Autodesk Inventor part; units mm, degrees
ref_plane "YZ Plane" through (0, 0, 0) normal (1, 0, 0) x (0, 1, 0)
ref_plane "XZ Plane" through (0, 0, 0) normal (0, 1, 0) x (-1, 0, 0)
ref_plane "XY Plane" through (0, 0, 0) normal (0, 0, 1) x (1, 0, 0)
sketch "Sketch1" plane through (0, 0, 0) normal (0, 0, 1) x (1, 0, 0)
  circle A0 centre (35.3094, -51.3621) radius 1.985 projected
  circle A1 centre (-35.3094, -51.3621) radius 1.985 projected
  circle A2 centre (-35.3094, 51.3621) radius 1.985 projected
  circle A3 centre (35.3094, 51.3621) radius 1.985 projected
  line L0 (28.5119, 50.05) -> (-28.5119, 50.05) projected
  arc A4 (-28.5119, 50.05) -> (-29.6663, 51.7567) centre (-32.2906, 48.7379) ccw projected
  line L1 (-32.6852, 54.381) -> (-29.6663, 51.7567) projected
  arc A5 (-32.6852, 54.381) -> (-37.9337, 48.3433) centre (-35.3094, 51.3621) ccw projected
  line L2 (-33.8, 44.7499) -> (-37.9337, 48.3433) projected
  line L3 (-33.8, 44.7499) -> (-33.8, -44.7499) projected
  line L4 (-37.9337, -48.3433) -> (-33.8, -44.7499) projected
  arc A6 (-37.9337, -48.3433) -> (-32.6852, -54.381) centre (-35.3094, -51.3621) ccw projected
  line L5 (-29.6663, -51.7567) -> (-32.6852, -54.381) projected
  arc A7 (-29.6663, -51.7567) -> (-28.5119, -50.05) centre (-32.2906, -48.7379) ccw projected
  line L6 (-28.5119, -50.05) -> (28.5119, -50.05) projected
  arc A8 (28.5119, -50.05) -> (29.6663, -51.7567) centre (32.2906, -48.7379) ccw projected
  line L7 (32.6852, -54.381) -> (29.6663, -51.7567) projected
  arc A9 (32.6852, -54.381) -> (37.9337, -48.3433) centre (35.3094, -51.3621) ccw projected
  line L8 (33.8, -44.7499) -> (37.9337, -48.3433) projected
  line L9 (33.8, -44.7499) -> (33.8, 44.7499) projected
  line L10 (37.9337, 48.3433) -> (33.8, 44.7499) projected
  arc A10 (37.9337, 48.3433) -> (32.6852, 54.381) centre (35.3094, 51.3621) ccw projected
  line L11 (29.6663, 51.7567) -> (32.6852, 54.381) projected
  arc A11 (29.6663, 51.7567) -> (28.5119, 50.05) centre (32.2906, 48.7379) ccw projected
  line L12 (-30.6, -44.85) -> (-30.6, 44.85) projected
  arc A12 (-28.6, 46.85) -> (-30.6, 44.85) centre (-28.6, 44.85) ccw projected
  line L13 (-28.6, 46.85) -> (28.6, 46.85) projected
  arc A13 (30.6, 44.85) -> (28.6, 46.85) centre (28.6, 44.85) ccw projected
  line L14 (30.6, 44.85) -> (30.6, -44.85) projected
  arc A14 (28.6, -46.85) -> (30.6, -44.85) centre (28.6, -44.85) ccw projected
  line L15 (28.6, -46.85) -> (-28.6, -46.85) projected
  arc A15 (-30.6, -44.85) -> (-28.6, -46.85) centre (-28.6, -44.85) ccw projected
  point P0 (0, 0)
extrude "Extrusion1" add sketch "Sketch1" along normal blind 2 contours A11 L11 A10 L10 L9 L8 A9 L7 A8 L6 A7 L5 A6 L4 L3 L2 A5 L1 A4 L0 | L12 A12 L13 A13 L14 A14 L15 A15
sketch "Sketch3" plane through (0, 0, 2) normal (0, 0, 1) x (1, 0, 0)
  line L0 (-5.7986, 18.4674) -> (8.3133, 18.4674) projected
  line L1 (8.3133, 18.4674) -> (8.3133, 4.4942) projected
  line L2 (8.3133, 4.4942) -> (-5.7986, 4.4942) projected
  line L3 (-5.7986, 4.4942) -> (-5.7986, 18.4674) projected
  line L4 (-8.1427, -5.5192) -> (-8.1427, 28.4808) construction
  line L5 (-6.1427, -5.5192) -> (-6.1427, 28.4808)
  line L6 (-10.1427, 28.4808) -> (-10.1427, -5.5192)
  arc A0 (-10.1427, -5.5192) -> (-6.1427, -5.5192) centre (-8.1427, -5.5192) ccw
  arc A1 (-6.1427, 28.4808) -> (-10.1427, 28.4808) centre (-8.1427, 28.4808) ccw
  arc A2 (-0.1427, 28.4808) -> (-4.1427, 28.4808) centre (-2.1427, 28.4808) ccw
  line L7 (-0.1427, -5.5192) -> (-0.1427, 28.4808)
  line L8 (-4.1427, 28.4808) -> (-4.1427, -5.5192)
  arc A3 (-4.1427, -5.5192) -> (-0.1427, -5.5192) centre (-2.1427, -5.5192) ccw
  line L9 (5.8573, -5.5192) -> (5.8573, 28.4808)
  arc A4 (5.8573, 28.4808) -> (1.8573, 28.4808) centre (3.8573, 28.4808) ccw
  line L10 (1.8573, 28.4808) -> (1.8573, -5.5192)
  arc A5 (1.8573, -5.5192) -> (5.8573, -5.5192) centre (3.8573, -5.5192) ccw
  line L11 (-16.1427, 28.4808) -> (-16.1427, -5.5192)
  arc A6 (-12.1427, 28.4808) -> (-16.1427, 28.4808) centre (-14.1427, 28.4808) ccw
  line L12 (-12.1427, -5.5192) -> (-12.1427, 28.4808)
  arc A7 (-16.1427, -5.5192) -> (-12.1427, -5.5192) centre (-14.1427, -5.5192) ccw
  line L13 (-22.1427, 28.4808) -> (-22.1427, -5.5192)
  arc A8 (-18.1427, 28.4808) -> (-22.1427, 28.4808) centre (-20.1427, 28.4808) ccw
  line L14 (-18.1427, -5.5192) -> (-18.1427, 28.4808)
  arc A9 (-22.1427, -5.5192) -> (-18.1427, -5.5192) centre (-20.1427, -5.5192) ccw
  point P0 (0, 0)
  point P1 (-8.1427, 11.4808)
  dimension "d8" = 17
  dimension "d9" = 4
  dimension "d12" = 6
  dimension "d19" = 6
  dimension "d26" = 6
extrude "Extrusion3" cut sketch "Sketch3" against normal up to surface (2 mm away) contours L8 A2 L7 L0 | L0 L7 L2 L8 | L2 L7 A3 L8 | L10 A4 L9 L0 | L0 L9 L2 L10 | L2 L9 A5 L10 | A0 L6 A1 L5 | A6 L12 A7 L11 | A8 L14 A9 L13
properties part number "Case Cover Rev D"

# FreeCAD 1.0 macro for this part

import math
import FreeCAD as App
import Part
import Sketcher
from FreeCAD import Vector
Q = App.Units.Quantity

doc = App.newDocument("Part")
body = doc.addObject("PartDesign::Body", "Body")

# Sketch on XY plane
sketch1 = doc.addObject("Sketcher::SketchObject", "Sketch")
body.addObject(sketch1)
sketch1.AttachmentSupport = (doc.XY_Plane, [""])
sketch1.MapMode = "FlatFace"
sketch1.addGeometry([
    Part.ArcOfCircle(Part.Circle(Vector(32.3, 48.7, 0), Vector(0, 0, 1), 4), math.radians(131), math.radians(161)),  # 0
    Part.LineSegment(Vector(28.5, 50, 0), Vector(-28.5, 50, 0)),  # 1
    Part.ArcOfCircle(Part.Circle(Vector(-32.3, 48.7, 0), Vector(0, 0, 1), 4), math.radians(19), math.radians(49)),  # 2
    Part.LineSegment(Vector(-29.7, 51.8, 0), Vector(-32.7, 54.4, 0)),  # 3
    Part.ArcOfCircle(Part.Circle(Vector(-35.3, 51.4, 0), Vector(0, 0, 1), 4), math.radians(49), math.radians(229)),  # 4
    Part.LineSegment(Vector(-37.9, 48.3, 0), Vector(-33.8, 44.7, 0)),  # 5
    Part.LineSegment(Vector(-33.8, 44.7, 0), Vector(-33.8, -44.7, 0)),  # 6
    Part.LineSegment(Vector(-33.8, -44.7, 0), Vector(-37.9, -48.3, 0)),  # 7
    Part.ArcOfCircle(Part.Circle(Vector(-35.3, -51.4, 0), Vector(0, 0, 1), 4), math.radians(131), math.radians(311)),  # 8
    Part.LineSegment(Vector(-32.7, -54.4, 0), Vector(-29.7, -51.8, 0)),  # 9
    Part.ArcOfCircle(Part.Circle(Vector(-32.3, -48.7, 0), Vector(0, 0, 1), 4), math.radians(-49), math.radians(-19)),  # 10
    Part.LineSegment(Vector(-28.5, -50, 0), Vector(28.5, -50, 0)),  # 11
    Part.ArcOfCircle(Part.Circle(Vector(32.3, -48.7, 0), Vector(0, 0, 1), 4), math.radians(-161), math.radians(-131)),  # 12
    Part.LineSegment(Vector(29.7, -51.8, 0), Vector(32.7, -54.4, 0)),  # 13
    Part.ArcOfCircle(Part.Circle(Vector(35.3, -51.4, 0), Vector(0, 0, 1), 4), math.radians(-131), math.radians(49)),  # 14
    Part.LineSegment(Vector(37.9, -48.3, 0), Vector(33.8, -44.7, 0)),  # 15
    Part.LineSegment(Vector(33.8, -44.7, 0), Vector(33.8, 44.7, 0)),  # 16
    Part.LineSegment(Vector(33.8, 44.7, 0), Vector(37.9, 48.3, 0)),  # 17
    Part.ArcOfCircle(Part.Circle(Vector(35.3, 51.4, 0), Vector(0, 0, 1), 4), math.radians(-49), math.radians(131)),  # 18
    Part.LineSegment(Vector(32.7, 54.4, 0), Vector(29.7, 51.8, 0)),  # 19
    Part.Circle(Vector(-35.3, -51.4, 0), Vector(0, 0, 1), 2),  # 20
    Part.Circle(Vector(35.3, -51.4, 0), Vector(0, 0, 1), 2),  # 21
    Part.Circle(Vector(-35.3, 51.4, 0), Vector(0, 0, 1), 2),  # 22
    Part.Circle(Vector(35.3, 51.4, 0), Vector(0, 0, 1), 2),  # 23
], False)
sketch1.addConstraint([
    Sketcher.Constraint("Coincident", 0, 2, 1, 1),
    Sketcher.Constraint("Coincident", 1, 2, 2, 1),
    Sketcher.Constraint("Tangent", 2, 2, 3, 1),
    Sketcher.Constraint("Tangent", 3, 2, 4, 1),
    Sketcher.Constraint("Tangent", 4, 2, 5, 1),
    Sketcher.Constraint("Coincident", 5, 2, 6, 1),
    Sketcher.Constraint("Coincident", 6, 2, 7, 1),
    Sketcher.Constraint("Tangent", 7, 2, 8, 1),
    Sketcher.Constraint("Tangent", 8, 2, 9, 1),
    Sketcher.Constraint("Tangent", 9, 2, 10, 1),
    Sketcher.Constraint("Coincident", 10, 2, 11, 1),
    Sketcher.Constraint("Coincident", 11, 2, 12, 1),
    Sketcher.Constraint("Tangent", 12, 2, 13, 1),
    Sketcher.Constraint("Tangent", 13, 2, 14, 1),
    Sketcher.Constraint("Tangent", 14, 2, 15, 1),
    Sketcher.Constraint("Coincident", 15, 2, 16, 1),
    Sketcher.Constraint("Coincident", 16, 2, 17, 1),
    Sketcher.Constraint("Tangent", 17, 2, 18, 1),
    Sketcher.Constraint("Tangent", 18, 2, 19, 1),
    Sketcher.Constraint("Tangent", 19, 2, 0, 1),
    Sketcher.Constraint("Horizontal", 1),
    Sketcher.Constraint("Vertical", 6),
    Sketcher.Constraint("Horizontal", 11),
    Sketcher.Constraint("Vertical", 16),
    Sketcher.Constraint("Coincident", 20, 3, 8, 3),
    Sketcher.Constraint("Coincident", 21, 3, 14, 3),
    Sketcher.Constraint("Coincident", 22, 3, 4, 3),
    Sketcher.Constraint("Coincident", 23, 3, 18, 3),
    Sketcher.Constraint("Equal", 0, 2),
    Sketcher.Constraint("Equal", 2, 4),
    Sketcher.Constraint("Equal", 4, 8),
    Sketcher.Constraint("Equal", 8, 10),
    Sketcher.Constraint("Equal", 10, 12),
    Sketcher.Constraint("Equal", 12, 14),
    Sketcher.Constraint("Equal", 14, 18),
    Sketcher.Constraint("Equal", 20, 21),
    Sketcher.Constraint("Equal", 21, 22),
    Sketcher.Constraint("Equal", 22, 23),
    Sketcher.Constraint("Symmetric", 0, 3, 10, 3, -1, 1),
    Sketcher.Constraint("Symmetric", 2, 3, 12, 3, -1, 1),
    Sketcher.Constraint("Symmetric", 4, 3, 14, 3, -1, 1),
    Sketcher.Constraint("Symmetric", 8, 3, 18, 3, -1, 1),
    Sketcher.Constraint("Symmetric", 5, 2, 15, 2, -1, 1),
    Sketcher.Constraint("Symmetric", 0, 3, 2, 3, -2),
    Sketcher.Constraint("Symmetric", 8, 3, 14, 3, -2),
    Sketcher.Constraint("Parallel", 3, 5),
    Sketcher.Constraint("Parallel", 7, 9),
    Sketcher.Constraint("Parallel", 9, 17),
    Sketcher.Constraint("Vertical", 1, 2, 10, 2),
    Sketcher.Constraint("Radius", 0, Q("4 mm")),
    Sketcher.Constraint("Diameter", 20, Q("3.97 mm")),
    Sketcher.Constraint("Angle", 3, Q("139 deg")),
    Sketcher.Constraint("Distance", 3, Q("4 mm")),
    Sketcher.Constraint("DistanceX", 5, 2, -1, 1, Q("33.8 mm")),
    Sketcher.Constraint("DistanceX", 4, 3, 0, 3, Q("67.6 mm")),
    Sketcher.Constraint("DistanceY", 8, 3, 2, 3, Q("100.1 mm")),
    Sketcher.Constraint("DistanceY", 5, 2, 1, 2, Q("5.3 mm")),
])
pad1 = doc.addObject("PartDesign::Pad", "Pad")
body.addObject(pad1)
pad1.Profile = sketch1
pad1.Length = 2

# Sketch on XY plane
sketch2 = doc.addObject("Sketcher::SketchObject", "Sketch001")
body.addObject(sketch2)
sketch2.AttachmentSupport = (doc.XY_Plane, [""])
sketch2.MapMode = "FlatFace"
sketch2.AttachmentOffset = App.Placement(Vector(0, 0, 2), App.Rotation())
sketch2.addGeometry([
    Part.LineSegment(Vector(-4.1, 28.5, 0), Vector(-4.1, -5.5, 0)),  # 0
    Part.ArcOfCircle(Part.Circle(Vector(-2.1, -5.5, 0), Vector(0, 0, 1), 2), math.radians(180), math.radians(360)),  # 1
    Part.LineSegment(Vector(-0.1, -5.5, 0), Vector(-0.1, 28.5, 0)),  # 2
    Part.ArcOfCircle(Part.Circle(Vector(-2.1, 28.5, 0), Vector(0, 0, 1), 2), math.radians(0), math.radians(180)),  # 3
    Part.LineSegment(Vector(1.9, 28.5, 0), Vector(1.9, -5.5, 0)),  # 4
    Part.ArcOfCircle(Part.Circle(Vector(3.9, -5.5, 0), Vector(0, 0, 1), 2), math.radians(180), math.radians(360)),  # 5
    Part.LineSegment(Vector(5.9, -5.5, 0), Vector(5.9, 28.5, 0)),  # 6
    Part.ArcOfCircle(Part.Circle(Vector(3.9, 28.5, 0), Vector(0, 0, 1), 2), math.radians(0), math.radians(180)),  # 7
    Part.ArcOfCircle(Part.Circle(Vector(-8.1, -5.5, 0), Vector(0, 0, 1), 2), math.radians(180), math.radians(360)),  # 8
    Part.LineSegment(Vector(-6.1, -5.5, 0), Vector(-6.1, 28.5, 0)),  # 9
    Part.ArcOfCircle(Part.Circle(Vector(-8.1, 28.5, 0), Vector(0, 0, 1), 2), math.radians(0), math.radians(180)),  # 10
    Part.LineSegment(Vector(-10.1, 28.5, 0), Vector(-10.1, -5.5, 0)),  # 11
    Part.ArcOfCircle(Part.Circle(Vector(-14.1, 28.5, 0), Vector(0, 0, 1), 2), math.radians(0), math.radians(180)),  # 12
    Part.LineSegment(Vector(-16.1, 28.5, 0), Vector(-16.1, -5.5, 0)),  # 13
    Part.ArcOfCircle(Part.Circle(Vector(-14.1, -5.5, 0), Vector(0, 0, 1), 2), math.radians(180), math.radians(360)),  # 14
    Part.LineSegment(Vector(-12.1, -5.5, 0), Vector(-12.1, 28.5, 0)),  # 15
    Part.ArcOfCircle(Part.Circle(Vector(-20.1, 28.5, 0), Vector(0, 0, 1), 2), math.radians(0), math.radians(180)),  # 16
    Part.LineSegment(Vector(-22.1, 28.5, 0), Vector(-22.1, -5.5, 0)),  # 17
    Part.ArcOfCircle(Part.Circle(Vector(-20.1, -5.5, 0), Vector(0, 0, 1), 2), math.radians(180), math.radians(360)),  # 18
    Part.LineSegment(Vector(-18.1, -5.5, 0), Vector(-18.1, 28.5, 0)),  # 19
], False)
sketch2.addConstraint([
    Sketcher.Constraint("Tangent", 0, 2, 1, 1),
    Sketcher.Constraint("Tangent", 1, 2, 2, 1),
    Sketcher.Constraint("Tangent", 2, 2, 3, 1),
    Sketcher.Constraint("Tangent", 3, 2, 0, 1),
    Sketcher.Constraint("Tangent", 4, 2, 5, 1),
    Sketcher.Constraint("Tangent", 5, 2, 6, 1),
    Sketcher.Constraint("Tangent", 6, 2, 7, 1),
    Sketcher.Constraint("Tangent", 7, 2, 4, 1),
    Sketcher.Constraint("Tangent", 8, 2, 9, 1),
    Sketcher.Constraint("Tangent", 9, 2, 10, 1),
    Sketcher.Constraint("Tangent", 10, 2, 11, 1),
    Sketcher.Constraint("Tangent", 11, 2, 8, 1),
    Sketcher.Constraint("Tangent", 12, 2, 13, 1),
    Sketcher.Constraint("Tangent", 13, 2, 14, 1),
    Sketcher.Constraint("Tangent", 14, 2, 15, 1),
    Sketcher.Constraint("Tangent", 15, 2, 12, 1),
    Sketcher.Constraint("Tangent", 16, 2, 17, 1),
    Sketcher.Constraint("Tangent", 17, 2, 18, 1),
    Sketcher.Constraint("Tangent", 18, 2, 19, 1),
    Sketcher.Constraint("Tangent", 19, 2, 16, 1),
    Sketcher.Constraint("Vertical", 0),
    Sketcher.Constraint("Vertical", 2),
    Sketcher.Constraint("Vertical", 4),
    Sketcher.Constraint("Vertical", 6),
    Sketcher.Constraint("Vertical", 9),
    Sketcher.Constraint("Vertical", 11),
    Sketcher.Constraint("Vertical", 13),
    Sketcher.Constraint("Vertical", 15),
    Sketcher.Constraint("Vertical", 17),
    Sketcher.Constraint("Vertical", 19),
    Sketcher.Constraint("Equal", 3, 5),
    Sketcher.Constraint("Equal", 7, 8),
    Sketcher.Constraint("Equal", 10, 12),
    Sketcher.Constraint("Equal", 14, 16),
    Sketcher.Constraint("Horizontal", 1, 3, 5, 3),
    Sketcher.Constraint("Horizontal", 3, 3, 7, 3),
    Sketcher.Constraint("Horizontal", 5, 3, 8, 3),
    Sketcher.Constraint("Horizontal", 7, 3, 10, 3),
    Sketcher.Constraint("Horizontal", 10, 3, 12, 3),
    Sketcher.Constraint("Horizontal", 8, 3, 14, 3),
    Sketcher.Constraint("Horizontal", 12, 3, 16, 3),
    Sketcher.Constraint("Horizontal", 14, 3, 18, 3),
    Sketcher.Constraint("Radius", 1, Q("2 mm")),
    Sketcher.Constraint("DistanceX", 1, 3, 5, 3, Q("6 mm")),
    Sketcher.Constraint("DistanceX", 8, 3, 1, 3, Q("6 mm")),
    Sketcher.Constraint("DistanceX", 12, 3, 10, 3, Q("6 mm")),
    Sketcher.Constraint("DistanceX", 16, 3, 12, 3, Q("6 mm")),
    Sketcher.Constraint("DistanceY", 0, 2, 0, 1, Q("34 mm")),
    Sketcher.Constraint("DistanceX", 1, 3, -1, 1, Q("2.1427 mm")),
    Sketcher.Constraint("DistanceY", 1, 3, -1, 1, Q("5.5192 mm")),
])
pocket1 = doc.addObject("PartDesign::Pocket", "Pocket")
body.addObject(pocket1)
pocket1.Profile = sketch2
pocket1.Length = 2

doc.recompute()
